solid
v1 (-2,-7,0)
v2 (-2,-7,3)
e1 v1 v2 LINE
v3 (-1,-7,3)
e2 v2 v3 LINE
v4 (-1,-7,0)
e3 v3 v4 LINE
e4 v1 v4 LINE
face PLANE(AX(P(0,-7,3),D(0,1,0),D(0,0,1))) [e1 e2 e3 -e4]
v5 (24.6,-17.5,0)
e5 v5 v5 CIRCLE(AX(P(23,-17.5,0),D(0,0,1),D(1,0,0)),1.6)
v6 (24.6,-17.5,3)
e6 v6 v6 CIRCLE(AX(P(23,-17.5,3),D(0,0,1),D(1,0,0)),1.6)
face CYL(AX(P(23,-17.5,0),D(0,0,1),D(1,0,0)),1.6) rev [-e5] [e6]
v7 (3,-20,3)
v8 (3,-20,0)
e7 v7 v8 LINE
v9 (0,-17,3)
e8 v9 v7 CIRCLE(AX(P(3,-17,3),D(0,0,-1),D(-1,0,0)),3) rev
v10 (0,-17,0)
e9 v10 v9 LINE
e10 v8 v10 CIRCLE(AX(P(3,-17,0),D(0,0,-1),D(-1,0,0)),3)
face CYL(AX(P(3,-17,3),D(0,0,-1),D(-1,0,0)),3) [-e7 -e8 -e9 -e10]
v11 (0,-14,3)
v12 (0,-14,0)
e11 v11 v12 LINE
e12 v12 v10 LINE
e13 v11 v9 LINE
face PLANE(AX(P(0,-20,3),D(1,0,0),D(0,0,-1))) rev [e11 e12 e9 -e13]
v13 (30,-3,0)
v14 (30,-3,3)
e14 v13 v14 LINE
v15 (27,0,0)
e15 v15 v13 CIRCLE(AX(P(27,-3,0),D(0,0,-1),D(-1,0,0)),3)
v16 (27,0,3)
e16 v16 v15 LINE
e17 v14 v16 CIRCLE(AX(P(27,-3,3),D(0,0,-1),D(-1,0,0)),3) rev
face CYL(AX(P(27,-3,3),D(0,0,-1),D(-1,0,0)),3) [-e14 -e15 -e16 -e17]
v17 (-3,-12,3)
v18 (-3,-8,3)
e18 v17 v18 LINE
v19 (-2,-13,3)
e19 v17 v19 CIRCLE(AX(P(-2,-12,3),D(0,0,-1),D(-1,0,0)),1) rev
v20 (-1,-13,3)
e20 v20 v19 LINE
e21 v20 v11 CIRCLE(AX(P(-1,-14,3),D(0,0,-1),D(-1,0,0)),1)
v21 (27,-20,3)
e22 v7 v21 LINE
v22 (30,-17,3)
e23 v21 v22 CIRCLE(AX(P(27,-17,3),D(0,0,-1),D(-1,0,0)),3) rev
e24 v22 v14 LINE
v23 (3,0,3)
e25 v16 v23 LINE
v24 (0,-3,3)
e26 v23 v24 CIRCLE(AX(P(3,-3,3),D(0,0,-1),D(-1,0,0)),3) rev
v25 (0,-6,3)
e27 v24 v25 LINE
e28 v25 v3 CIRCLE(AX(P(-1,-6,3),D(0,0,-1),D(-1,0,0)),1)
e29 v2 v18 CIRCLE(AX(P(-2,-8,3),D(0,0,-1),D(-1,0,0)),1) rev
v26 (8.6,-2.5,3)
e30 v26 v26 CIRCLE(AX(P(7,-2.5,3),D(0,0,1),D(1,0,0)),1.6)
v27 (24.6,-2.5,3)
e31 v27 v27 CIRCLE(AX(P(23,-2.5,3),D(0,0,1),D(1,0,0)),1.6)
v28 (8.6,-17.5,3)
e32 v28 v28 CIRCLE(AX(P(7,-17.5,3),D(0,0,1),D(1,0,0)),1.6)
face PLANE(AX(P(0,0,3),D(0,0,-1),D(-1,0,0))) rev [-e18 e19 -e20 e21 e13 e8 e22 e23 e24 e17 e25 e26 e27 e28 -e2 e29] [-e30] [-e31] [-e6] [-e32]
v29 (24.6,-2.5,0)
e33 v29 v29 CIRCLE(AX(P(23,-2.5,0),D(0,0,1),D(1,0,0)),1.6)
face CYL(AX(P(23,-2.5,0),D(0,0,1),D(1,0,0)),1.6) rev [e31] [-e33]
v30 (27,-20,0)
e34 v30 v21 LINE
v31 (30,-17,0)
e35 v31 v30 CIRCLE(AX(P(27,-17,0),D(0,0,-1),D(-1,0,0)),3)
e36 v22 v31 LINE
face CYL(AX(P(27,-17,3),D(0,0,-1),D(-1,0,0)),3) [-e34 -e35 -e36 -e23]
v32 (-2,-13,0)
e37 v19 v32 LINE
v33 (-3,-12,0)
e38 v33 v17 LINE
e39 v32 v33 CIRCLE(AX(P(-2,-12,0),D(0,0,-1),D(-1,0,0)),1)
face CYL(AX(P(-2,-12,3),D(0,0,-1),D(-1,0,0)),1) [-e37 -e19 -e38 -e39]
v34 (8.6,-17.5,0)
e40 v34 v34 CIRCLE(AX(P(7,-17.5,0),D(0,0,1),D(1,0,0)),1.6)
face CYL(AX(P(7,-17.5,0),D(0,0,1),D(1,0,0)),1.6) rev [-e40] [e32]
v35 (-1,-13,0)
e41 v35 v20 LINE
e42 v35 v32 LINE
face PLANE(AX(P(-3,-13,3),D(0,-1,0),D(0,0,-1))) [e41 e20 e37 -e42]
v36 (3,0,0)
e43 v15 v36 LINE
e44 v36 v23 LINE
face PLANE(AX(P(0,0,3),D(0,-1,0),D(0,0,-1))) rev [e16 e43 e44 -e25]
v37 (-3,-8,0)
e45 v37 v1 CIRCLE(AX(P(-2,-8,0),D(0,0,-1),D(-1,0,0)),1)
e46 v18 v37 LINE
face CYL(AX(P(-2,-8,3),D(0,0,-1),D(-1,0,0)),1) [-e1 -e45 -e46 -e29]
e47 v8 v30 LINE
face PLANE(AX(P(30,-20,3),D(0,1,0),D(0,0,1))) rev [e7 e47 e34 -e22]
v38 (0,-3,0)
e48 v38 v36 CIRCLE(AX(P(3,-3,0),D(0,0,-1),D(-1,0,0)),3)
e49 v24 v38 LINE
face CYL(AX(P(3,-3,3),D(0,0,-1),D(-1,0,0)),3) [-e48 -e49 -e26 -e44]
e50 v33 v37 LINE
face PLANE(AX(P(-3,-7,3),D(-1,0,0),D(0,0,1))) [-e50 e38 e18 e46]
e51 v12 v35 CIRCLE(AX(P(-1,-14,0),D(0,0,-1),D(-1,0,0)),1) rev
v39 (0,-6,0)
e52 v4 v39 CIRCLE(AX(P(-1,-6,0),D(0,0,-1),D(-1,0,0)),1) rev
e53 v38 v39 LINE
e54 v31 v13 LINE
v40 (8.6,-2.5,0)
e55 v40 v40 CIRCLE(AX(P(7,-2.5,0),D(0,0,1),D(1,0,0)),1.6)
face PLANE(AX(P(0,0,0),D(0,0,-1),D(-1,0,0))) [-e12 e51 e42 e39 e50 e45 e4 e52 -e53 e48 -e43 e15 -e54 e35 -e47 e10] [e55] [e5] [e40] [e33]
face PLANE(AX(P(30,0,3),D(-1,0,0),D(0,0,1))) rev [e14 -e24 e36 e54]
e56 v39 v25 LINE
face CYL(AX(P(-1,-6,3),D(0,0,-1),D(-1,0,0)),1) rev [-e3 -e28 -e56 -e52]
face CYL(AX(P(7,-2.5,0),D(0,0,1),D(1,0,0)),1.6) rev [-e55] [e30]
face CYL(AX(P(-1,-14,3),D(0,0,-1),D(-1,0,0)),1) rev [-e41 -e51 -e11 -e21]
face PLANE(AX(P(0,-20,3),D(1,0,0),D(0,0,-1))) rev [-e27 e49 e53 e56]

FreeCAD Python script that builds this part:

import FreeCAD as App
import Part
import Sketcher
from FreeCAD import Vector


def edges_at(feature, points):
    """Names of the edges that pass closest to the given points."""
    edges = feature.Shape.Edges
    near = lambda p: min(range(len(edges)), key=lambda i: edges[i].distToShape(Part.Vertex(*p))[0])
    return sorted({f"Edge{near(p) + 1}" for p in points})


def add_polygon(sketch, points):
    """Adds a closed chain of lines whose ends are joined by coincident constraints."""
    first, n = sketch.GeometryCount, len(points)
    for a, b in zip(points, points[1:] + points[:1]):
        sketch.addGeometry(Part.LineSegment(App.Vector(*a, 0), App.Vector(*b, 0)), False)
    for i in range(n):
        sketch.addConstraint(Sketcher.Constraint("Coincident", first + i, 2, first + (i + 1) % n, 1))

doc = App.newDocument("Part")
body = doc.addObject("PartDesign::Body", "Body")

# Sketch on XY plane
sketch1 = body.newObject("Sketcher::SketchObject", "Sketch")
sketch1.AttachmentSupport = (doc.getObject("XY_Plane"), [""])
sketch1.MapMode = "FlatFace"
add_polygon(sketch1, [(0, 0), (0, -20), (30, -20), (30, 0)])  # lines 0-3
sketch1.addConstraint([
    Sketcher.Constraint("Vertical", 0),
    Sketcher.Constraint("Horizontal", 1),
    Sketcher.Constraint("Vertical", 2),
    Sketcher.Constraint("Horizontal", 3),
    Sketcher.Constraint("Coincident", 3, 2, -1, 1),
    Sketcher.Constraint("DistanceX", 1, 1, 1, 2, 30.0),
    Sketcher.Constraint("DistanceY", 0, 2, 0, 1, 20.0),
])
pad1 = body.newObject("PartDesign::Pad", "Pad")
pad1.Profile = sketch1
pad1.Length = 3
doc.recompute()

fillet = body.newObject("PartDesign::Fillet", "Fillet")
fillet.Base = (pad1, edges_at(pad1, [
    (0, 0, 1.5),
    (30, 0, 1.5),
    (30, -20, 1.5),
    (0, -20, 1.5),
]))
fillet.Radius = 3

# Sketch on XY plane
sketch2 = body.newObject("Sketcher::SketchObject", "Sketch001")
sketch2.AttachmentSupport = (doc.getObject("XY_Plane"), [""])
sketch2.MapMode = "FlatFace"
sketch2.AttachmentOffset = App.Placement(Vector(0, 0, 3), App.Rotation())
sketch2.addGeometry([
    Part.Circle(Vector(23, -2.5, 0), Vector(0, 0, 1), 1.6),
    Part.Circle(Vector(23, -17.5, 0), Vector(0, 0, 1), 1.6),
    Part.Circle(Vector(7, -17.5, 0), Vector(0, 0, 1), 1.6),
    Part.Circle(Vector(7, -2.5, 0), Vector(0, 0, 1), 1.6),
], False)
sketch2.addConstraint([
    Sketcher.Constraint("Equal", 0, 1),
    Sketcher.Constraint("Equal", 1, 2),
    Sketcher.Constraint("Equal", 2, 3),
    Sketcher.Constraint("Horizontal", 1, 3, 2, 3),
    Sketcher.Constraint("Horizontal", 0, 3, 3, 3),
    Sketcher.Constraint("Vertical", 0, 3, 1, 3),
    Sketcher.Constraint("Vertical", 2, 3, 3, 3),
    Sketcher.Constraint("Diameter", 0, 3.2),
    Sketcher.Constraint("DistanceX", -1, 1, 0, 3, 23.0),
    Sketcher.Constraint("DistanceX", -1, 1, 2, 3, 7.0),
    Sketcher.Constraint("DistanceY", 1, 3, 0, 3, 15.0),
    Sketcher.Constraint("DistanceY", 0, 3, -1, 1, 2.5),
])
pocket1 = body.newObject("PartDesign::Pocket", "Pocket")
pocket1.Profile = sketch2
pocket1.Type = "ThroughAll"

# Sketch on XY plane
sketch3 = body.newObject("Sketcher::SketchObject", "Sketch002")
sketch3.AttachmentSupport = (doc.getObject("XY_Plane"), [""])
sketch3.MapMode = "FlatFace"
add_polygon(sketch3, [(0, -13), (-3, -13), (-3, -7), (0, -7)])  # lines 0-3
sketch3.addConstraint([
    Sketcher.Constraint("Horizontal", 0),
    Sketcher.Constraint("Vertical", 1),
    Sketcher.Constraint("Horizontal", 2),
    Sketcher.Constraint("Vertical", 3),
    Sketcher.Constraint("PointOnObject", 2, 2, -2),
    Sketcher.Constraint("DistanceX", 0, 2, 0, 1, 3.0),
    Sketcher.Constraint("DistanceY", 1, 1, 1, 2, 6.0),
    Sketcher.Constraint("DistanceY", 0, 2, -1, 1, 13.0),
])
pad2 = body.newObject("PartDesign::Pad", "Pad001")
pad2.Profile = sketch3
pad2.Length = 3
doc.recompute()

fillet2 = body.newObject("PartDesign::Fillet", "Fillet001")
fillet2.Base = (pad2, edges_at(pad2, [
    (0, -7, 1.5),
    (-3, -7, 1.5),
    (-3, -13, 1.5),
    (0, -13, 1.5),
]))
fillet2.Radius = 1

doc.recompute()
